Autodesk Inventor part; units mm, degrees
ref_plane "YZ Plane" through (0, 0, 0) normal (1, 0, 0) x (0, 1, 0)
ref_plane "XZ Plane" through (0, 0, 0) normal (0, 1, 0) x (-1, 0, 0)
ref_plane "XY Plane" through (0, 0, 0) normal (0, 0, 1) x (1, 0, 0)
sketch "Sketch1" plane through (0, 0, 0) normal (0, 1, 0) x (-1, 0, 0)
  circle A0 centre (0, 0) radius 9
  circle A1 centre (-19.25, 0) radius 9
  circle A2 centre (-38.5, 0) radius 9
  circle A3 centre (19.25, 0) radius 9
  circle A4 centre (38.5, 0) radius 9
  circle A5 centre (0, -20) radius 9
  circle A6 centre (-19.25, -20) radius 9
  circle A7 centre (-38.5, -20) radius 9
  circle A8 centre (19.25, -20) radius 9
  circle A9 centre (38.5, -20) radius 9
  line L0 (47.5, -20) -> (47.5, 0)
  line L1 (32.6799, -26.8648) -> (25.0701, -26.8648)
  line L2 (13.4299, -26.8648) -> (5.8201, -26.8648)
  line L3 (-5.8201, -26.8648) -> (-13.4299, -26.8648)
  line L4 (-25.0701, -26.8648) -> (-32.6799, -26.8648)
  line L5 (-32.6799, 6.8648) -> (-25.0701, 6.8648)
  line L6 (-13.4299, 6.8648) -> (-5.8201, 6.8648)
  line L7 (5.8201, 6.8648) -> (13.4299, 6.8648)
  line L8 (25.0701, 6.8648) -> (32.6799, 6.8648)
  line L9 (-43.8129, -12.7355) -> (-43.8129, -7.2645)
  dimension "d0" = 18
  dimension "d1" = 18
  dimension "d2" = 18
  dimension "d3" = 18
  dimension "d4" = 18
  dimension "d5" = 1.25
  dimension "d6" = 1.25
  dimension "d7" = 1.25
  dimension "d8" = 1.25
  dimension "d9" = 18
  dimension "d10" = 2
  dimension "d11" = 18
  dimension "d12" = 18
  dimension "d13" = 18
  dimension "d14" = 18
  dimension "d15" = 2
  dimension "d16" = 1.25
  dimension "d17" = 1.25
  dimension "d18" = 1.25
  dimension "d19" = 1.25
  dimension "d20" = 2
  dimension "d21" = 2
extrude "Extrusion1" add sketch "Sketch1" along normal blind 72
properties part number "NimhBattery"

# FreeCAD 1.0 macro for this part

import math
import FreeCAD as App
import Part
import Sketcher

doc = App.newDocument("Part")
params = doc.addObject("Spreadsheet::Sheet", "Params")
for row, (alias, value) in enumerate([
    ("sketch1_radius", "9 mm"),
    ("sketch1_height", "20 mm"),
    ("pad1_length", "72 mm"),
], start=1):
    params.set(f"A{row}", alias)
    params.set(f"B{row}", "=" + value)
    params.setAlias(f"B{row}", alias)

body = doc.addObject("PartDesign::Body", "Body")

sketch1 = doc.addObject("Sketcher::SketchObject", "Sketch")
body.addObject(sketch1)
sketch1.AttachmentSupport = (doc.XZ_Plane, [""])
sketch1.MapMode = "FlatFace"
sketch1.addGeometry([
    Part.ArcOfCircle(Part.Circle(App.Vector(0, 0, 0), App.Vector(0, 0, 1), 9), math.radians(50), math.radians(130)),
    Part.LineSegment(App.Vector(6, 7, 0), App.Vector(13, 7, 0)),
    Part.ArcOfCircle(Part.Circle(App.Vector(19, 0, 0), App.Vector(0, 0, 1), 9), math.radians(50), math.radians(130)),
    Part.LineSegment(App.Vector(25, 7, 0), App.Vector(33, 7, 0)),
    Part.ArcOfCircle(Part.Circle(App.Vector(38, 0, 0), App.Vector(0, 0, 1), 9), math.radians(-54), math.radians(130)),
    Part.LineSegment(App.Vector(44, -7, 0), App.Vector(44, -13, 0)),
    Part.ArcOfCircle(Part.Circle(App.Vector(38, -20, 0), App.Vector(0, 0, 1), 9), math.radians(-130), math.radians(54)),
    Part.LineSegment(App.Vector(33, -27, 0), App.Vector(25, -27, 0)),
    Part.ArcOfCircle(Part.Circle(App.Vector(19, -20, 0), App.Vector(0, 0, 1), 9), math.radians(-130), math.radians(-50)),
    Part.LineSegment(App.Vector(13, -27, 0), App.Vector(6, -27, 0)),
    Part.ArcOfCircle(Part.Circle(App.Vector(0, -20, 0), App.Vector(0, 0, 1), 9), math.radians(-130), math.radians(-50)),
    Part.LineSegment(App.Vector(-6, -27, 0), App.Vector(-13, -27, 0)),
    Part.ArcOfCircle(Part.Circle(App.Vector(-19, -20, 0), App.Vector(0, 0, 1), 9), math.radians(-130), math.radians(-50)),
    Part.LineSegment(App.Vector(-25, -27, 0), App.Vector(-33, -27, 0)),
    Part.ArcOfCircle(Part.Circle(App.Vector(-38, -20, 0), App.Vector(0, 0, 1), 9), math.radians(180), math.radians(310)),
    Part.LineSegment(App.Vector(-48, -20, 0), App.Vector(-48, 0, 0)),
    Part.ArcOfCircle(Part.Circle(App.Vector(-38, 0, 0), App.Vector(0, 0, 1), 9), math.radians(50), math.radians(180)),
    Part.LineSegment(App.Vector(-33, 7, 0), App.Vector(-25, 7, 0)),
    Part.ArcOfCircle(Part.Circle(App.Vector(-19, 0, 0), App.Vector(0, 0, 1), 9), math.radians(50), math.radians(130)),
    Part.LineSegment(App.Vector(-13, 7, 0), App.Vector(-6, 7, 0)),
], False)
sketch1.addConstraint([
    Sketcher.Constraint("Coincident", 0, 1, 1, 1),
    Sketcher.Constraint("Coincident", 1, 2, 2, 2),
    Sketcher.Constraint("Coincident", 2, 1, 3, 1),
    Sketcher.Constraint("Coincident", 3, 2, 4, 2),
    Sketcher.Constraint("Coincident", 4, 1, 5, 1),
    Sketcher.Constraint("Coincident", 5, 2, 6, 2),
    Sketcher.Constraint("Coincident", 6, 1, 7, 1),
    Sketcher.Constraint("Coincident", 7, 2, 8, 2),
    Sketcher.Constraint("Coincident", 8, 1, 9, 1),
    Sketcher.Constraint("Coincident", 9, 2, 10, 2),
    Sketcher.Constraint("Coincident", 10, 1, 11, 1),
    Sketcher.Constraint("Coincident", 11, 2, 12, 2),
    Sketcher.Constraint("Coincident", 12, 1, 13, 1),
    Sketcher.Constraint("Coincident", 13, 2, 14, 2),
    Sketcher.Constraint("Tangent", 14, 1, 15, 1),
    Sketcher.Constraint("Tangent", 15, 2, 16, 2),
    Sketcher.Constraint("Coincident", 16, 1, 17, 1),
    Sketcher.Constraint("Coincident", 17, 2, 18, 2),
    Sketcher.Constraint("Coincident", 18, 1, 19, 1),
    Sketcher.Constraint("Coincident", 19, 2, 0, 2),
    Sketcher.Constraint("Horizontal", 1),
    Sketcher.Constraint("Horizontal", 3),
    Sketcher.Constraint("Vertical", 5),
    Sketcher.Constraint("Horizontal", 7),
    Sketcher.Constraint("Horizontal", 9),
    Sketcher.Constraint("Horizontal", 11),
    Sketcher.Constraint("Horizontal", 13),
    Sketcher.Constraint("Vertical", 15),
    Sketcher.Constraint("Horizontal", 17),
    Sketcher.Constraint("Horizontal", 19),
    Sketcher.Constraint("Coincident", 0, 3, -1, 1),
    Sketcher.Constraint("Equal", 0, 2),
    Sketcher.Constraint("Equal", 2, 4),
    Sketcher.Constraint("Equal", 4, 6),
    Sketcher.Constraint("Equal", 6, 8),
    Sketcher.Constraint("Equal", 8, 10),
    Sketcher.Constraint("Equal", 10, 12),
    Sketcher.Constraint("Equal", 12, 14),
    Sketcher.Constraint("Equal", 14, 16),
    Sketcher.Constraint("Equal", 16, 18),
    Sketcher.Constraint("Symmetric", 4, 3, 16, 3, -1, 1),
    Sketcher.Constraint("Symmetric", 2, 3, 18, 3, -1, 1),
    Sketcher.Constraint("Symmetric", 8, 3, 12, 3, -2),
    Sketcher.Constraint("Symmetric", 6, 3, 14, 3, -2),
    Sketcher.Constraint("Symmetric", 9, 2, 10, 1, -2),
    Sketcher.Constraint("Symmetric", 3, 2, 16, 1, -2),
    Sketcher.Constraint("Symmetric", 1, 2, 18, 1, -2),
    Sketcher.Constraint("Horizontal", 6, 3, 8, 3),
    Sketcher.Constraint("Horizontal", 8, 3, 10, 3),
    Sketcher.Constraint("Horizontal", 1, 2, 2, 1),
    Sketcher.Constraint("Horizontal", 7, 2, 8, 1),
    Sketcher.Constraint("Horizontal", 11, 2, 12, 1),
    Sketcher.Constraint("Vertical", 2, 3, 8, 3),
    Sketcher.Constraint("Vertical", 3, 2, 6, 1),
    Sketcher.Constraint("Equal", 1, 3),
    Sketcher.Constraint("Radius", 0, 9.0),
    Sketcher.Constraint("DistanceY", 15, 1, 15, 2, 20.0),
    Sketcher.Constraint("DistanceX", -1, 1, 4, 3, 38.5),
    Sketcher.Constraint("DistanceY", 5, 2, 5, 1, 5.471),
    Sketcher.Constraint("DistanceX", -1, 1, 1, 2, 13.43),
])
sketch1.setExpression("Constraints[55]", "Params.sketch1_radius")
sketch1.setExpression("Constraints[56]", "Params.sketch1_height")
pad1 = doc.addObject("PartDesign::Pad", "Pad")
body.addObject(pad1)
pad1.Profile = sketch1
pad1.setExpression("Length", "Params.pad1_length")
pad1.Reversed = True

doc.recompute()
